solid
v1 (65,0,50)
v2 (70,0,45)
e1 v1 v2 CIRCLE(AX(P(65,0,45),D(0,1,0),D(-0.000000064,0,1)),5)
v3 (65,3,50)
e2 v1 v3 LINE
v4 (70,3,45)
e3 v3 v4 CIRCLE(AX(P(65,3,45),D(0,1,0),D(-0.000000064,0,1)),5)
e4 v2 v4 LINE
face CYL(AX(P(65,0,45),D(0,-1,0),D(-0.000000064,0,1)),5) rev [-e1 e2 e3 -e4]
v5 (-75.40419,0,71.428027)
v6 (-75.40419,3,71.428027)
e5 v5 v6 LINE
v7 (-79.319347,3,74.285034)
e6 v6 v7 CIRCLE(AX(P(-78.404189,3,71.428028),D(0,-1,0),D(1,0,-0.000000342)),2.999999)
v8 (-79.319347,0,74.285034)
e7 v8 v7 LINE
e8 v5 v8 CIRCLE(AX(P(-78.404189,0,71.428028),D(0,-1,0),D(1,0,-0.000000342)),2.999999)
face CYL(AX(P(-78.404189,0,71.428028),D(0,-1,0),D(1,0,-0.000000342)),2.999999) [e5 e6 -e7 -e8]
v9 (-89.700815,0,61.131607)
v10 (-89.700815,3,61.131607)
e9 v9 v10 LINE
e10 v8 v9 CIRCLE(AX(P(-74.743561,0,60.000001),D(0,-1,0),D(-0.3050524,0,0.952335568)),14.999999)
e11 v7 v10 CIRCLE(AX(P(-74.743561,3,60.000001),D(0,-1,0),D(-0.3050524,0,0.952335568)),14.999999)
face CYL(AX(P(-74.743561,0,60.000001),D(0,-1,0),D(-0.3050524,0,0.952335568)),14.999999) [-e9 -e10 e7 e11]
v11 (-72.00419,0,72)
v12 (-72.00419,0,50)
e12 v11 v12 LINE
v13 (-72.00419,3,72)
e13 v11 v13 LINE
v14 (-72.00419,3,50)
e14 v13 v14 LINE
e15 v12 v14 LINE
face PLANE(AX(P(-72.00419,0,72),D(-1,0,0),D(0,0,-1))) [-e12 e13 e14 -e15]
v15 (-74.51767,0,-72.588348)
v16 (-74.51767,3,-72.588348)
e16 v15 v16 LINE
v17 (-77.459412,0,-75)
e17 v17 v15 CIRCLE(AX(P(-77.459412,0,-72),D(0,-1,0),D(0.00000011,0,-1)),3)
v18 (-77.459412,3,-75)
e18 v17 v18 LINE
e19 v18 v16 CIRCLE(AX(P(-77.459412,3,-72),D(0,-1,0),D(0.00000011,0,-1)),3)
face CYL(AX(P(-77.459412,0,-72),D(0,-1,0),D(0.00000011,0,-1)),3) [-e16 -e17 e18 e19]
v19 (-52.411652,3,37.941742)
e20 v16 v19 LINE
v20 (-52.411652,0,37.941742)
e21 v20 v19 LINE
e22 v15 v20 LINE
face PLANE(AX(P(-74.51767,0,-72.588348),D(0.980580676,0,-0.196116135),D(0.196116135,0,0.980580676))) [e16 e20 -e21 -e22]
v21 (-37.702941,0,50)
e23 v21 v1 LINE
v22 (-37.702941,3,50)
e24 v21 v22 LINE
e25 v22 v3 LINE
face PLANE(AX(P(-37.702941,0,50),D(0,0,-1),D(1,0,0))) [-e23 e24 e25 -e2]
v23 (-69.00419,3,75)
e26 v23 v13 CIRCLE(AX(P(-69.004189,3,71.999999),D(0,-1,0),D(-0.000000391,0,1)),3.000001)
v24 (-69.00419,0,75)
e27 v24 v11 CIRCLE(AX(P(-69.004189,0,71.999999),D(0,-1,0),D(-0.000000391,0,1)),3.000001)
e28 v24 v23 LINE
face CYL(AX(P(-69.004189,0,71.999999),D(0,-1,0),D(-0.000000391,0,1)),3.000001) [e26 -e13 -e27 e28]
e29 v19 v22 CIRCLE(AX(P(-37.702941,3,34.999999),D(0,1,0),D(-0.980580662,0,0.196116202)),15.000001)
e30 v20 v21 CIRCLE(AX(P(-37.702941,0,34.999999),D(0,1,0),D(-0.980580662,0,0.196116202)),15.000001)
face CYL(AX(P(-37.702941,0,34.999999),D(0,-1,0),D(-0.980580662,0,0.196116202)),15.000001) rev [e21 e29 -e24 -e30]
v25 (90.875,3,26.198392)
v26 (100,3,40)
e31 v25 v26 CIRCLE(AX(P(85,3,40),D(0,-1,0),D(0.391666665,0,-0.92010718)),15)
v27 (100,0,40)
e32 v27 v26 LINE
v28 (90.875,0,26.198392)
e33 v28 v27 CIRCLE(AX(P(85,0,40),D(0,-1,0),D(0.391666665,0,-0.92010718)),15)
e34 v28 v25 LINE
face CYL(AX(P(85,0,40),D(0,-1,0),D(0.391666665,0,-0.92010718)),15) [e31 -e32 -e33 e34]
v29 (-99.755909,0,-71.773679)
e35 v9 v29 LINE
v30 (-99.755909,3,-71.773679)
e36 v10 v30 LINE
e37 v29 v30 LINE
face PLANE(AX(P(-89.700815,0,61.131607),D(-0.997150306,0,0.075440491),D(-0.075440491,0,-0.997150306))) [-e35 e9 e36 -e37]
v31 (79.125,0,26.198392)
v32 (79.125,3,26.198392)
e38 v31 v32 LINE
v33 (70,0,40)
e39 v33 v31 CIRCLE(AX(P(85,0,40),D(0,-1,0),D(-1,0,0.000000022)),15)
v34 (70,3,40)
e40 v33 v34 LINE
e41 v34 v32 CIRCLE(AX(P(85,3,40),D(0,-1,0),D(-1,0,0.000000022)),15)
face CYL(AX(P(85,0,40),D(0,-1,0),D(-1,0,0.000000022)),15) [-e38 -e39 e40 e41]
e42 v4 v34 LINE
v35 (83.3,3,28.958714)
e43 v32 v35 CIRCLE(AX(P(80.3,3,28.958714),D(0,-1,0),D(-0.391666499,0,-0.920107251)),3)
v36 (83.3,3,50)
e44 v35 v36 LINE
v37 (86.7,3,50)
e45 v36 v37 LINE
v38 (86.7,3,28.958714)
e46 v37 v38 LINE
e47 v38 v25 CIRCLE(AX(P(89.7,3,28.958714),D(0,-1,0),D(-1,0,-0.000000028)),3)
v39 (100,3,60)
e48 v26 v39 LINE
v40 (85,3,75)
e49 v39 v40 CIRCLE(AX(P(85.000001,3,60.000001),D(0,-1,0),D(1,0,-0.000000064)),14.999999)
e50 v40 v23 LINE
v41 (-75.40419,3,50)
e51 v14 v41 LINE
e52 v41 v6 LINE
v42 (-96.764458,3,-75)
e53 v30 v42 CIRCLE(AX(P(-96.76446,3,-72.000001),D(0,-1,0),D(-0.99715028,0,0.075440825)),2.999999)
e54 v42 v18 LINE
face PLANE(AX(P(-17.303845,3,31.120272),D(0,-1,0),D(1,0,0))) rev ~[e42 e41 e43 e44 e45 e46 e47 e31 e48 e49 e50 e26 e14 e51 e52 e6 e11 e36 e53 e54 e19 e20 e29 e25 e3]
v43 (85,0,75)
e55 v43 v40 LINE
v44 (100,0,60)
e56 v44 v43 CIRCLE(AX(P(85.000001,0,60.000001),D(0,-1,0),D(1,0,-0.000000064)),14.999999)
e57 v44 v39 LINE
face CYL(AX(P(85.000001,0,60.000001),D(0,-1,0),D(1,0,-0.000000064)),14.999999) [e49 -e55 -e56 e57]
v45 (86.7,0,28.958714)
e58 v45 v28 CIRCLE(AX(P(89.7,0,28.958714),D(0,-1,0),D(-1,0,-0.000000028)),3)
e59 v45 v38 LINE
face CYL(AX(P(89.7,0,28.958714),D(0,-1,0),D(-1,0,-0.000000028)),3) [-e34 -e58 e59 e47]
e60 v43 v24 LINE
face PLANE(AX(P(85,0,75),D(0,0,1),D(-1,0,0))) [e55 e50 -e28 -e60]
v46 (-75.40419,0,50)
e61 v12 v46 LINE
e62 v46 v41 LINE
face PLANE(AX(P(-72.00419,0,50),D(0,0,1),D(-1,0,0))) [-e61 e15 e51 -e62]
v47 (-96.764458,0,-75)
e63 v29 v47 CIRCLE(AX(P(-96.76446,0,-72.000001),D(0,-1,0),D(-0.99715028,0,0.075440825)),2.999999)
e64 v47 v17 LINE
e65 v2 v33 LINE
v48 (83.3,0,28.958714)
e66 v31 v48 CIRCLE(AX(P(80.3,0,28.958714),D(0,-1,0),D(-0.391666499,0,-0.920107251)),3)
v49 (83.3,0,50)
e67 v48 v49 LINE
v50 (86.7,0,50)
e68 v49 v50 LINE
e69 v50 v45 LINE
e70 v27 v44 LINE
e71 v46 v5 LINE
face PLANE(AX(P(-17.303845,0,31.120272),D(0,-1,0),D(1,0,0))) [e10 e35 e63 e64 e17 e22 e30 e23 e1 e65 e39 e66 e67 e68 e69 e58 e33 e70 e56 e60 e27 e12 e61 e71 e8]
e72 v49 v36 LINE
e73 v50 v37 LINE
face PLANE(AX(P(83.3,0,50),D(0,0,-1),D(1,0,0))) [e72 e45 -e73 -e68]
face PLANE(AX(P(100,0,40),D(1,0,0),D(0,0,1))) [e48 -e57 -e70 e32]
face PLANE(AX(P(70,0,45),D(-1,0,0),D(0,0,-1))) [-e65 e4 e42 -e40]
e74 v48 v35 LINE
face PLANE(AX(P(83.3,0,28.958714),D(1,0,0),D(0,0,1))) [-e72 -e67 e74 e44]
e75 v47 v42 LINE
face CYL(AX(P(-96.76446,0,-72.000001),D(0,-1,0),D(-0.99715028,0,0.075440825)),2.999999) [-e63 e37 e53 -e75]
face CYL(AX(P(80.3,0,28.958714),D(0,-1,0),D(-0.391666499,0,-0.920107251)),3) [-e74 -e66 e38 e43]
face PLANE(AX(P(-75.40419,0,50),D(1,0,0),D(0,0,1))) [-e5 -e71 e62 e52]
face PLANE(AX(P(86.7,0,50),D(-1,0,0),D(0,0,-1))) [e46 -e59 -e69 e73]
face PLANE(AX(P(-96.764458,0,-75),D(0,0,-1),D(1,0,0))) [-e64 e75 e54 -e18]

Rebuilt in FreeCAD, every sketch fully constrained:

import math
import FreeCAD as App
import Part
import Sketcher

V = App.Vector
Q = App.Units.Quantity

doc = App.newDocument("Part")
body = doc.addObject("PartDesign::Body", "Body")

# Sketch on XZ plane
sketch1 = body.newObject("Sketcher::SketchObject", "Sketch")
sketch1.AttachmentSupport = (doc.getObject("XZ_Plane"), [""])
sketch1.MapMode = "FlatFace"
sketch1.addGeometry([
    Part.ArcOfCircle(Part.Circle(V(-96.76446, -72.000001, 0), V(0, 0, 1), 2.999999), math.radians(175.673448), math.radians(270.000029)),  # 0
    Part.LineSegment(V(-96.764458, -75, 0), V(-77.459412, -75, 0)),  # 1
    Part.ArcOfCircle(Part.Circle(V(-77.459412, -72, 0), V(0, 0, 1), 3), math.radians(-89.999994), math.radians(-11.309929)),  # 2
    Part.LineSegment(V(-74.51767, -72.588348, 0), V(-52.411652, 37.941742, 0)),  # 3
    Part.ArcOfCircle(Part.Circle(V(-37.702941, 34.999999, 0), V(0, 0, 1), 15.000001), math.radians(90.000001), math.radians(168.690064)),  # 4
    Part.LineSegment(V(-37.702941, 50, 0), V(65, 50, 0)),  # 5
    Part.ArcOfCircle(Part.Circle(V(65, 45, 0), V(0, 0, 1), 5), math.radians(-0.000004), math.radians(90.000004)),  # 6
    Part.LineSegment(V(70, 45, 0), V(70, 40, 0)),  # 7
    Part.ArcOfCircle(Part.Circle(V(85, 40, 0), V(0, 0, 1), 15), math.radians(179.999999), math.radians(246.941756)),  # 8
    Part.ArcOfCircle(Part.Circle(V(80.3, 28.958714, 0), V(0, 0, 1), 3), math.radians(-113.058234), math.radians(-0.000002)),  # 9
    Part.LineSegment(V(83.3, 28.958714, 0), V(83.3, 50, 0)),  # 10
    Part.LineSegment(V(83.3, 50, 0), V(86.7, 50, 0)),  # 11
    Part.LineSegment(V(86.7, 50, 0), V(86.7, 28.958714, 0)),  # 12
    Part.ArcOfCircle(Part.Circle(V(89.7, 28.958714, 0), V(0, 0, 1), 3), math.radians(-179.999998), math.radians(-66.941766)),  # 13
    Part.ArcOfCircle(Part.Circle(V(85, 40, 0), V(0, 0, 1), 15), math.radians(-66.941756), math.radians(0.000001)),  # 14
    Part.LineSegment(V(100, 40, 0), V(100, 60, 0)),  # 15
    Part.ArcOfCircle(Part.Circle(V(85.000001, 60.000001, 0), V(0, 0, 1), 14.999999), math.radians(-0.000004), math.radians(90.000004)),  # 16
    Part.LineSegment(V(85, 75, 0), V(-69.00419, 75, 0)),  # 17
    Part.ArcOfCircle(Part.Circle(V(-69.004189, 71.999999, 0), V(0, 0, 1), 3.000001), math.radians(90.000022), math.radians(179.999978)),  # 18
    Part.LineSegment(V(-72.00419, 72, 0), V(-72.00419, 50, 0)),  # 19
    Part.LineSegment(V(-72.00419, 50, 0), V(-75.40419, 50, 0)),  # 20
    Part.LineSegment(V(-75.40419, 50, 0), V(-75.40419, 71.428027, 0)),  # 21
    Part.ArcOfCircle(Part.Circle(V(-78.404189, 71.428028, 0), V(0, 0, 1), 2.999999), math.radians(-0.00002), math.radians(107.761328)),  # 22
    Part.ArcOfCircle(Part.Circle(V(-74.743561, 60.000001, 0), V(0, 0, 1), 14.999999), math.radians(107.761316), math.radians(175.673474)),  # 23
    Part.LineSegment(V(-89.700815, 61.131607, 0), V(-99.755909, -71.773679, 0)),  # 24
], False)
sketch1.addConstraint([
    Sketcher.Constraint("Tangent", 0, 2, 1, 1),
    Sketcher.Constraint("Tangent", 1, 2, 2, 1),
    Sketcher.Constraint("Tangent", 2, 2, 3, 1),
    Sketcher.Constraint("Tangent", 3, 2, 4, 2),
    Sketcher.Constraint("Tangent", 4, 1, 5, 1),
    Sketcher.Constraint("Tangent", 5, 2, 6, 2),
    Sketcher.Constraint("Tangent", 6, 1, 7, 1),
    Sketcher.Constraint("Tangent", 7, 2, 8, 1),
    Sketcher.Constraint("Tangent", 8, 2, 9, 1),
    Sketcher.Constraint("Tangent", 9, 2, 10, 1),
    Sketcher.Constraint("Coincident", 10, 2, 11, 1),
    Sketcher.Constraint("Coincident", 11, 2, 12, 1),
    Sketcher.Constraint("Tangent", 12, 2, 13, 1),
    Sketcher.Constraint("Tangent", 13, 2, 14, 1),
    Sketcher.Constraint("Tangent", 14, 2, 15, 1),
    Sketcher.Constraint("Tangent", 15, 2, 16, 1),
    Sketcher.Constraint("Tangent", 16, 2, 17, 1),
    Sketcher.Constraint("Tangent", 17, 2, 18, 1),
    Sketcher.Constraint("Tangent", 18, 2, 19, 1),
    Sketcher.Constraint("Coincident", 19, 2, 20, 1),
    Sketcher.Constraint("Coincident", 20, 2, 21, 1),
    Sketcher.Constraint("Tangent", 21, 2, 22, 1),
    Sketcher.Constraint("Tangent", 22, 2, 23, 1),
    Sketcher.Constraint("Tangent", 23, 2, 24, 1),
    Sketcher.Constraint("Tangent", 24, 2, 0, 1),
    Sketcher.Constraint("Horizontal", 1),
    Sketcher.Constraint("Horizontal", 5),
    Sketcher.Constraint("Vertical", 7),
    Sketcher.Constraint("Vertical", 10),
    Sketcher.Constraint("Horizontal", 11),
    Sketcher.Constraint("Vertical", 12),
    Sketcher.Constraint("Vertical", 15),
    Sketcher.Constraint("Horizontal", 17),
    Sketcher.Constraint("Vertical", 19),
    Sketcher.Constraint("Horizontal", 20),
    Sketcher.Constraint("Vertical", 21),
    Sketcher.Constraint("Coincident", 14, 3, 8, 3),
    Sketcher.Constraint("Equal", 0, 2),
    Sketcher.Constraint("Equal", 4, 8),
    Sketcher.Constraint("Equal", 2, 9),
    Sketcher.Constraint("Equal", 9, 13),
    Sketcher.Constraint("Equal", 8, 14),
    Sketcher.Constraint("Equal", 14, 16),
    Sketcher.Constraint("Equal", 13, 18),
    Sketcher.Constraint("Equal", 18, 22),
    Sketcher.Constraint("Equal", 16, 23),
    Sketcher.Constraint("Horizontal", 9, 3, 13, 3),
    Sketcher.Constraint("Horizontal", 16, 3, 23, 3),
    Sketcher.Constraint("Horizontal", 5, 2, 10, 2),
    Sketcher.Constraint("Horizontal", 11, 2, 19, 2),
    Sketcher.Constraint("Equal", 11, 20),
    Sketcher.Constraint("Radius", 0, Q("2.999999 mm")),
    Sketcher.Constraint("Radius", 4, Q("15.000001 mm")),
    Sketcher.Constraint("Radius", 6, Q("5 mm")),
    Sketcher.Constraint("DistanceY", 7, 2, 7, 1, Q("5 mm")),
    Sketcher.Constraint("DistanceY", 15, 1, 15, 2, Q("20 mm")),
    Sketcher.Constraint("DistanceX", 11, 1, 11, 2, Q("3.4 mm")),
    Sketcher.Constraint("DistanceY", 0, 3, -1, 1, Q("72.000001 mm")),
    Sketcher.Constraint("DistanceY", -1, 1, 4, 3, Q("34.999999 mm")),
    Sketcher.Constraint("DistanceX", -1, 1, 6, 3, Q("65 mm")),
    Sketcher.Constraint("DistanceX", 5, 1, 5, 2, Q("102.702941 mm")),
    Sketcher.Constraint("DistanceX", 17, 2, 17, 1, Q("154.00419 mm")),
    Sketcher.Constraint("DistanceX", 0, 3, 23, 3, Q("22.020898 mm")),
    Sketcher.Constraint("DistanceX", 1, 1, 1, 2, Q("19.305046 mm")),
    Sketcher.Constraint("DistanceY", 21, 1, 21, 2, Q("21.428027 mm")),
])
pad1 = body.newObject("PartDesign::Pad", "Pad")
pad1.Profile = sketch1
pad1.Length = 3
pad1.Reversed = True

doc.recompute()
